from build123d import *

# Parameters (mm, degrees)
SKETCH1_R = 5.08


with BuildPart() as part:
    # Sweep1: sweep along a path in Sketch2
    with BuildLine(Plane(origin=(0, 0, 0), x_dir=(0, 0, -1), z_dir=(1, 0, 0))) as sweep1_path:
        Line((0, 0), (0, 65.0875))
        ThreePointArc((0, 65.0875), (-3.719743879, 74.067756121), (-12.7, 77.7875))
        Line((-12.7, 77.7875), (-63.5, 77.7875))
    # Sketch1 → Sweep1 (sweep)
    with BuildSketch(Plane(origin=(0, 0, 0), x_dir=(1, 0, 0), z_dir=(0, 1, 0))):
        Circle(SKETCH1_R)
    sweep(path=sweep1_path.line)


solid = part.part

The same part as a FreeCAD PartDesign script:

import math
import FreeCAD as App
import Part
import Sketcher
Q = App.Units.Quantity

doc = App.newDocument("Part")
body = doc.addObject("PartDesign::Body", "Body")

# Sketch on XZ plane
sketch1 = body.newObject("Sketcher::SketchObject", "Sketch")
sketch1.AttachmentSupport = (doc.getObject("XZ_Plane"), [""])
sketch1.MapMode = "FlatFace"
sketch1.addGeometry(Part.Circle(App.Vector(0, 0, 0), App.Vector(0, 0, 1), 5), False)
sketch1.addConstraint([
    Sketcher.Constraint("Coincident", 0, 3, -1, 1),
    Sketcher.Constraint("Diameter", 0, Q("0.4 in")),
])

# Sketch on YZ plane
sketch2 = body.newObject("Sketcher::SketchObject", "Sketch001")
sketch2.AttachmentSupport = (doc.getObject("YZ_Plane"), [""])
sketch2.MapMode = "FlatFace"
sketch2.addGeometry([
    Part.LineSegment(App.Vector(0, 0, 0), App.Vector(65, 0, 0)),
    Part.ArcOfCircle(Part.Circle(App.Vector(65, 13, 0), App.Vector(0, 0, 1), 13), math.radians(-90), math.radians(0)),
    Part.LineSegment(App.Vector(78, 13, 0), App.Vector(78, 64, 0)),
], False)
sketch2.addConstraint([
    Sketcher.Constraint("Tangent", 0, 2, 1, 1),
    Sketcher.Constraint("Tangent", 1, 2, 2, 1),
    Sketcher.Constraint("Horizontal", 0),
    Sketcher.Constraint("Vertical", 2),
    Sketcher.Constraint("Coincident", 0, 1, -1, 1),
    Sketcher.Constraint("Radius", 1, Q("0.5 in")),
    Sketcher.Constraint("DistanceY", 2, 1, 2, 2, Q("2 in")),
    Sketcher.Constraint("DistanceX", 0, 1, 0, 2, Q("2.5625 in")),
])
doc.recompute()

additivepipe = body.newObject("PartDesign::AdditivePipe", "AdditivePipe")
additivepipe.Profile = sketch1
additivepipe.Spine = (sketch2, ["Edge1", "Edge2", "Edge3"])

doc.recompute()
